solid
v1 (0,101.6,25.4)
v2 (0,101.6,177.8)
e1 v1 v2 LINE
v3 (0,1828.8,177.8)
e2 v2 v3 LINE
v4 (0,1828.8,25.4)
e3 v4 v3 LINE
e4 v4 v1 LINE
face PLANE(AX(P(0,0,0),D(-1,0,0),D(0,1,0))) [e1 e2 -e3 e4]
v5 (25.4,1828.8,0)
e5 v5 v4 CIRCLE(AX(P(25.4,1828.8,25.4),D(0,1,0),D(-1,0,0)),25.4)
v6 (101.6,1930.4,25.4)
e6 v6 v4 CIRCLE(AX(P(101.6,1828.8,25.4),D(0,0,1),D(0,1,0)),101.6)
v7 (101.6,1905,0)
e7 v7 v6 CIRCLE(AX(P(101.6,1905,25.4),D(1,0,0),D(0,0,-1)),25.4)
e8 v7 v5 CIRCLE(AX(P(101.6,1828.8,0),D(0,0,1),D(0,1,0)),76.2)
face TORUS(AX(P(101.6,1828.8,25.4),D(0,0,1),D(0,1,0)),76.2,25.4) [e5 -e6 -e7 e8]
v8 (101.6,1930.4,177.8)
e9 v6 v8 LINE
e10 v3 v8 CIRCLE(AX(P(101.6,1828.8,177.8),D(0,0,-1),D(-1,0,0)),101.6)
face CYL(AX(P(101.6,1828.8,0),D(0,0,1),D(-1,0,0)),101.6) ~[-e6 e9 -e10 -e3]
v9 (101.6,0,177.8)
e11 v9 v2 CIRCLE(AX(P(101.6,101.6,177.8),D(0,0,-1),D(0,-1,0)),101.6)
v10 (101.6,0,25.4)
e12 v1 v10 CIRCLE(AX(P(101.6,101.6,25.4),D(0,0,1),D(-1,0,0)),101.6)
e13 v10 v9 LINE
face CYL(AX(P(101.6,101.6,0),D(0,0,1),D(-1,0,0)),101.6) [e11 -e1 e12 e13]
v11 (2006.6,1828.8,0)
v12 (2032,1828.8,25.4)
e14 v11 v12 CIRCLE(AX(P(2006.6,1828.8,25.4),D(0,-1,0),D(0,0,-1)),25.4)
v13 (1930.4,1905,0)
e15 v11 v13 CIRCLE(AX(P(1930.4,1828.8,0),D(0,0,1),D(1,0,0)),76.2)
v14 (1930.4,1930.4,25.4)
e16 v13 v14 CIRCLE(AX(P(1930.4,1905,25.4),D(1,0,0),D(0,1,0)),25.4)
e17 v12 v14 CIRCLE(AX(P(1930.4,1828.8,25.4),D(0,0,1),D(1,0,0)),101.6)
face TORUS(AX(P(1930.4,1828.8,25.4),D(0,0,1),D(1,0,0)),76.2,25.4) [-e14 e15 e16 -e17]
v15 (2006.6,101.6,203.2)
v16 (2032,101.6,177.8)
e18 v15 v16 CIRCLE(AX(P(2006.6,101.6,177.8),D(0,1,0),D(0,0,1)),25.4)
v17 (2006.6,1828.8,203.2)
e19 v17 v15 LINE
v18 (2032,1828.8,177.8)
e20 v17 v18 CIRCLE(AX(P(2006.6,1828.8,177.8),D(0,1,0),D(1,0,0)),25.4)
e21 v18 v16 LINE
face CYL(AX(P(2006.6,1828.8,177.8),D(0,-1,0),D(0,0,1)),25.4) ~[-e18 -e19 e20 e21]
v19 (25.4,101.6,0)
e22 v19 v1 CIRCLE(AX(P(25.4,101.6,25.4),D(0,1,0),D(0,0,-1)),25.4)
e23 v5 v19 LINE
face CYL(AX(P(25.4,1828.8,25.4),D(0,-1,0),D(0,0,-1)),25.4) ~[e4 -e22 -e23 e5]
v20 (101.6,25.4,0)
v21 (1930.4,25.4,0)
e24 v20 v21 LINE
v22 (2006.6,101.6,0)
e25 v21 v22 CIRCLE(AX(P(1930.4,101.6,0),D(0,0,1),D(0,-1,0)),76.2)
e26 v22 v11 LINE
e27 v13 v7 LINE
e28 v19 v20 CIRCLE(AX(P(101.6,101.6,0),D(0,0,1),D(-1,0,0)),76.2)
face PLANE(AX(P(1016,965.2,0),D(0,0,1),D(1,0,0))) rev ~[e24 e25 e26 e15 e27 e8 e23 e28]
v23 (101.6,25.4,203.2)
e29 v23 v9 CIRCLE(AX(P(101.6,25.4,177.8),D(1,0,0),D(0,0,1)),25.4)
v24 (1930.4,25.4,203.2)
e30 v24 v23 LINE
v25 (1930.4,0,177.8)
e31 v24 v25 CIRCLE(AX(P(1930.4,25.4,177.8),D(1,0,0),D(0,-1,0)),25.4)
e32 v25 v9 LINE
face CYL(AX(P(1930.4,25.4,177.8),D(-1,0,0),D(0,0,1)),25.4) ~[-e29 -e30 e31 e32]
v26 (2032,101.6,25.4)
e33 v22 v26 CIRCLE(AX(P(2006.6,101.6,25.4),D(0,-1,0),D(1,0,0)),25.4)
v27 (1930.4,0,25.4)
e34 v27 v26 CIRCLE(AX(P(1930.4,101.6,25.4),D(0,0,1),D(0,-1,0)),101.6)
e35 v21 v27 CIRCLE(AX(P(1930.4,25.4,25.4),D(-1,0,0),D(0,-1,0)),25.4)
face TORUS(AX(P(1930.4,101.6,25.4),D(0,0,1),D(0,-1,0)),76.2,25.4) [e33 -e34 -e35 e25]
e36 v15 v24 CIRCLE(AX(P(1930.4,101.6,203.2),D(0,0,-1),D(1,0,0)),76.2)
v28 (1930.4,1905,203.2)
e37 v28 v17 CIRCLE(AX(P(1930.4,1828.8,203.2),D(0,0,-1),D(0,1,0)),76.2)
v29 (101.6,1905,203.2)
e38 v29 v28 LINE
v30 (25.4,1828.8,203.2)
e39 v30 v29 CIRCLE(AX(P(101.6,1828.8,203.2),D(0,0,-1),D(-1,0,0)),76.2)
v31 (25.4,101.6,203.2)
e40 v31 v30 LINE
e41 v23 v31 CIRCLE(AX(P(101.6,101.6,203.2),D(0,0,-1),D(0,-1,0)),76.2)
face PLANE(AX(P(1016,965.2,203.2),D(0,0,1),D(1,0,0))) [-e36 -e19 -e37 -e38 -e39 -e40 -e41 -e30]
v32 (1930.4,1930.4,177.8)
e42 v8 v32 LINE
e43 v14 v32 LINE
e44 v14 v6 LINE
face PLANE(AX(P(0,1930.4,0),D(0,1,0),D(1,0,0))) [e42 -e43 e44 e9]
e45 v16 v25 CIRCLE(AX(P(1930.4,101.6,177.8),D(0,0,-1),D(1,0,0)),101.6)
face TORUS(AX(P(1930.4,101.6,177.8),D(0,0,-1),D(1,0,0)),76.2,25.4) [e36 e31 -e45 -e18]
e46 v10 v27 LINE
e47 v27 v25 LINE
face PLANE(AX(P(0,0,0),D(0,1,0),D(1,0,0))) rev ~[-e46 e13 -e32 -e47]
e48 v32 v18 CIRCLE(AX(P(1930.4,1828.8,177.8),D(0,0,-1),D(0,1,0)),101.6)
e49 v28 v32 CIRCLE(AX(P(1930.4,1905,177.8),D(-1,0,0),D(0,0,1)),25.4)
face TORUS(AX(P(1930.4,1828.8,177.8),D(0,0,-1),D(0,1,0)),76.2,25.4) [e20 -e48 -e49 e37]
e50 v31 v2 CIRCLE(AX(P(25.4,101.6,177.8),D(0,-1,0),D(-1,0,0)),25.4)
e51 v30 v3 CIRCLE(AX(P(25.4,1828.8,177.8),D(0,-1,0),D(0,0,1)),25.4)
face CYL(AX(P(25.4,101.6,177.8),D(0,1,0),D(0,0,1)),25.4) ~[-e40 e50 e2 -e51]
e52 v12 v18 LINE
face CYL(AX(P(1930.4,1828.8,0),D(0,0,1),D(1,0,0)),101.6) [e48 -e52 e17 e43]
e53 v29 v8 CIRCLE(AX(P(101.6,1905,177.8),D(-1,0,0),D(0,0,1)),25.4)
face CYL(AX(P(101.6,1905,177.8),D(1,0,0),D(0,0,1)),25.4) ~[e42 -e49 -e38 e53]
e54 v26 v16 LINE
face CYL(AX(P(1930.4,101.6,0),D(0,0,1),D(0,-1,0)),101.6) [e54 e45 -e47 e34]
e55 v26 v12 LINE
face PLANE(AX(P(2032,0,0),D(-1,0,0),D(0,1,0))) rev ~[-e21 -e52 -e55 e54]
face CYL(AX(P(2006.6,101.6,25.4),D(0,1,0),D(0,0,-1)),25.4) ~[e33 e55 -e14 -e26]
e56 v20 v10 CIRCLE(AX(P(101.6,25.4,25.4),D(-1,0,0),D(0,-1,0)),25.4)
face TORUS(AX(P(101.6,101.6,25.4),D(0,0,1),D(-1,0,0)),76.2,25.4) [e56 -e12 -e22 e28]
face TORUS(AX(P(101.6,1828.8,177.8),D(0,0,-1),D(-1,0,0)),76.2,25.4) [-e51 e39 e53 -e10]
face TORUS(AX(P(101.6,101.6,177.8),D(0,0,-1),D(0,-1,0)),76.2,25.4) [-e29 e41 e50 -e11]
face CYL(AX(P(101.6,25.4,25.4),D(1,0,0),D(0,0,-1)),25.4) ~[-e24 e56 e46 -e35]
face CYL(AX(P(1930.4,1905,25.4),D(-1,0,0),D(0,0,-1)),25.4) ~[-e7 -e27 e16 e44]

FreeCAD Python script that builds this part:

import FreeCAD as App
import Part
import Sketcher
from FreeCAD import Vector
Q = App.Units.Quantity


def edges_at(feature, points):
    """Names of the edges that pass closest to the given points."""
    edges = feature.Shape.Edges
    near = lambda p: min(range(len(edges)), key=lambda i: edges[i].distToShape(Part.Vertex(*p))[0])
    return sorted({f"Edge{near(p) + 1}" for p in points})


def add_polygon(sketch, points):
    """Adds a closed chain of lines whose ends are joined by coincident constraints."""
    first, n = sketch.GeometryCount, len(points)
    for a, b in zip(points, points[1:] + points[:1]):
        sketch.addGeometry(Part.LineSegment(App.Vector(*a, 0), App.Vector(*b, 0)), False)
    for i in range(n):
        sketch.addConstraint(Sketcher.Constraint("Coincident", first + i, 2, first + (i + 1) % n, 1))

doc = App.newDocument("Part")
body = doc.addObject("PartDesign::Body", "Body")

# Sketch on XY plane
sketch1 = body.newObject("Sketcher::SketchObject", "Sketch")
sketch1.AttachmentSupport = (doc.getObject("XY_Plane"), [""])
sketch1.MapMode = "FlatFace"
add_polygon(sketch1, [(0, 1930), (0, 0), (2032, 0), (2032, 1930)])  # lines 0-3
sketch1.addConstraint([
    Sketcher.Constraint("Vertical", 0),
    Sketcher.Constraint("Horizontal", 1),
    Sketcher.Constraint("Vertical", 2),
    Sketcher.Constraint("Horizontal", 3),
    Sketcher.Constraint("Coincident", 0, 2, -1, 1),
    Sketcher.Constraint("DistanceX", 1, 1, 1, 2, Q("80 in")),
    Sketcher.Constraint("DistanceY", 0, 2, 0, 1, Q("76 in")),
])
pad1 = body.newObject("PartDesign::Pad", "Pad")
pad1.Profile = sketch1
pad1.Length = Q("8 in")
doc.recompute()

fillet = body.newObject("PartDesign::Fillet", "Fillet")
fillet.Base = (pad1, edges_at(pad1, [
    (0, 1930.4, 101.6),
    (0, 0, 101.6),
    (2032, 0, 101.6),
    (2032, 1930.4, 101.6),
]))
fillet.Radius = Q("4 in")
doc.recompute()

fillet2 = body.newObject("PartDesign::Fillet", "Fillet001")
fillet2.Base = (fillet, edges_at(fillet, [
    (1016, 1930.4, 203.2),
    (29.758, 1900.642, 203.2),
    (0, 965.2, 203.2),
    (29.758, 29.758, 203.2),
    (1016, 0, 203.2),
    (2002.242, 29.758, 203.2),
    (2032, 965.2, 203.2),
    (2002.242, 1900.642, 203.2),
]))
fillet2.Radius = Q("1 in")
doc.recompute()

fillet3 = body.newObject("PartDesign::Fillet", "Fillet002")
fillet3.Base = (fillet2, edges_at(fillet2, [
    (2002.242, 29.758, 0),
    (1016, 0, 0),
    (29.758, 29.758, 0),
    (0, 965.2, 0),
    (29.758, 1900.642, 0),
    (1016, 1930.4, 0),
    (2002.242, 1900.642, 0),
    (2032, 965.2, 0),
]))
fillet3.Radius = Q("1 in")

doc.recompute()
